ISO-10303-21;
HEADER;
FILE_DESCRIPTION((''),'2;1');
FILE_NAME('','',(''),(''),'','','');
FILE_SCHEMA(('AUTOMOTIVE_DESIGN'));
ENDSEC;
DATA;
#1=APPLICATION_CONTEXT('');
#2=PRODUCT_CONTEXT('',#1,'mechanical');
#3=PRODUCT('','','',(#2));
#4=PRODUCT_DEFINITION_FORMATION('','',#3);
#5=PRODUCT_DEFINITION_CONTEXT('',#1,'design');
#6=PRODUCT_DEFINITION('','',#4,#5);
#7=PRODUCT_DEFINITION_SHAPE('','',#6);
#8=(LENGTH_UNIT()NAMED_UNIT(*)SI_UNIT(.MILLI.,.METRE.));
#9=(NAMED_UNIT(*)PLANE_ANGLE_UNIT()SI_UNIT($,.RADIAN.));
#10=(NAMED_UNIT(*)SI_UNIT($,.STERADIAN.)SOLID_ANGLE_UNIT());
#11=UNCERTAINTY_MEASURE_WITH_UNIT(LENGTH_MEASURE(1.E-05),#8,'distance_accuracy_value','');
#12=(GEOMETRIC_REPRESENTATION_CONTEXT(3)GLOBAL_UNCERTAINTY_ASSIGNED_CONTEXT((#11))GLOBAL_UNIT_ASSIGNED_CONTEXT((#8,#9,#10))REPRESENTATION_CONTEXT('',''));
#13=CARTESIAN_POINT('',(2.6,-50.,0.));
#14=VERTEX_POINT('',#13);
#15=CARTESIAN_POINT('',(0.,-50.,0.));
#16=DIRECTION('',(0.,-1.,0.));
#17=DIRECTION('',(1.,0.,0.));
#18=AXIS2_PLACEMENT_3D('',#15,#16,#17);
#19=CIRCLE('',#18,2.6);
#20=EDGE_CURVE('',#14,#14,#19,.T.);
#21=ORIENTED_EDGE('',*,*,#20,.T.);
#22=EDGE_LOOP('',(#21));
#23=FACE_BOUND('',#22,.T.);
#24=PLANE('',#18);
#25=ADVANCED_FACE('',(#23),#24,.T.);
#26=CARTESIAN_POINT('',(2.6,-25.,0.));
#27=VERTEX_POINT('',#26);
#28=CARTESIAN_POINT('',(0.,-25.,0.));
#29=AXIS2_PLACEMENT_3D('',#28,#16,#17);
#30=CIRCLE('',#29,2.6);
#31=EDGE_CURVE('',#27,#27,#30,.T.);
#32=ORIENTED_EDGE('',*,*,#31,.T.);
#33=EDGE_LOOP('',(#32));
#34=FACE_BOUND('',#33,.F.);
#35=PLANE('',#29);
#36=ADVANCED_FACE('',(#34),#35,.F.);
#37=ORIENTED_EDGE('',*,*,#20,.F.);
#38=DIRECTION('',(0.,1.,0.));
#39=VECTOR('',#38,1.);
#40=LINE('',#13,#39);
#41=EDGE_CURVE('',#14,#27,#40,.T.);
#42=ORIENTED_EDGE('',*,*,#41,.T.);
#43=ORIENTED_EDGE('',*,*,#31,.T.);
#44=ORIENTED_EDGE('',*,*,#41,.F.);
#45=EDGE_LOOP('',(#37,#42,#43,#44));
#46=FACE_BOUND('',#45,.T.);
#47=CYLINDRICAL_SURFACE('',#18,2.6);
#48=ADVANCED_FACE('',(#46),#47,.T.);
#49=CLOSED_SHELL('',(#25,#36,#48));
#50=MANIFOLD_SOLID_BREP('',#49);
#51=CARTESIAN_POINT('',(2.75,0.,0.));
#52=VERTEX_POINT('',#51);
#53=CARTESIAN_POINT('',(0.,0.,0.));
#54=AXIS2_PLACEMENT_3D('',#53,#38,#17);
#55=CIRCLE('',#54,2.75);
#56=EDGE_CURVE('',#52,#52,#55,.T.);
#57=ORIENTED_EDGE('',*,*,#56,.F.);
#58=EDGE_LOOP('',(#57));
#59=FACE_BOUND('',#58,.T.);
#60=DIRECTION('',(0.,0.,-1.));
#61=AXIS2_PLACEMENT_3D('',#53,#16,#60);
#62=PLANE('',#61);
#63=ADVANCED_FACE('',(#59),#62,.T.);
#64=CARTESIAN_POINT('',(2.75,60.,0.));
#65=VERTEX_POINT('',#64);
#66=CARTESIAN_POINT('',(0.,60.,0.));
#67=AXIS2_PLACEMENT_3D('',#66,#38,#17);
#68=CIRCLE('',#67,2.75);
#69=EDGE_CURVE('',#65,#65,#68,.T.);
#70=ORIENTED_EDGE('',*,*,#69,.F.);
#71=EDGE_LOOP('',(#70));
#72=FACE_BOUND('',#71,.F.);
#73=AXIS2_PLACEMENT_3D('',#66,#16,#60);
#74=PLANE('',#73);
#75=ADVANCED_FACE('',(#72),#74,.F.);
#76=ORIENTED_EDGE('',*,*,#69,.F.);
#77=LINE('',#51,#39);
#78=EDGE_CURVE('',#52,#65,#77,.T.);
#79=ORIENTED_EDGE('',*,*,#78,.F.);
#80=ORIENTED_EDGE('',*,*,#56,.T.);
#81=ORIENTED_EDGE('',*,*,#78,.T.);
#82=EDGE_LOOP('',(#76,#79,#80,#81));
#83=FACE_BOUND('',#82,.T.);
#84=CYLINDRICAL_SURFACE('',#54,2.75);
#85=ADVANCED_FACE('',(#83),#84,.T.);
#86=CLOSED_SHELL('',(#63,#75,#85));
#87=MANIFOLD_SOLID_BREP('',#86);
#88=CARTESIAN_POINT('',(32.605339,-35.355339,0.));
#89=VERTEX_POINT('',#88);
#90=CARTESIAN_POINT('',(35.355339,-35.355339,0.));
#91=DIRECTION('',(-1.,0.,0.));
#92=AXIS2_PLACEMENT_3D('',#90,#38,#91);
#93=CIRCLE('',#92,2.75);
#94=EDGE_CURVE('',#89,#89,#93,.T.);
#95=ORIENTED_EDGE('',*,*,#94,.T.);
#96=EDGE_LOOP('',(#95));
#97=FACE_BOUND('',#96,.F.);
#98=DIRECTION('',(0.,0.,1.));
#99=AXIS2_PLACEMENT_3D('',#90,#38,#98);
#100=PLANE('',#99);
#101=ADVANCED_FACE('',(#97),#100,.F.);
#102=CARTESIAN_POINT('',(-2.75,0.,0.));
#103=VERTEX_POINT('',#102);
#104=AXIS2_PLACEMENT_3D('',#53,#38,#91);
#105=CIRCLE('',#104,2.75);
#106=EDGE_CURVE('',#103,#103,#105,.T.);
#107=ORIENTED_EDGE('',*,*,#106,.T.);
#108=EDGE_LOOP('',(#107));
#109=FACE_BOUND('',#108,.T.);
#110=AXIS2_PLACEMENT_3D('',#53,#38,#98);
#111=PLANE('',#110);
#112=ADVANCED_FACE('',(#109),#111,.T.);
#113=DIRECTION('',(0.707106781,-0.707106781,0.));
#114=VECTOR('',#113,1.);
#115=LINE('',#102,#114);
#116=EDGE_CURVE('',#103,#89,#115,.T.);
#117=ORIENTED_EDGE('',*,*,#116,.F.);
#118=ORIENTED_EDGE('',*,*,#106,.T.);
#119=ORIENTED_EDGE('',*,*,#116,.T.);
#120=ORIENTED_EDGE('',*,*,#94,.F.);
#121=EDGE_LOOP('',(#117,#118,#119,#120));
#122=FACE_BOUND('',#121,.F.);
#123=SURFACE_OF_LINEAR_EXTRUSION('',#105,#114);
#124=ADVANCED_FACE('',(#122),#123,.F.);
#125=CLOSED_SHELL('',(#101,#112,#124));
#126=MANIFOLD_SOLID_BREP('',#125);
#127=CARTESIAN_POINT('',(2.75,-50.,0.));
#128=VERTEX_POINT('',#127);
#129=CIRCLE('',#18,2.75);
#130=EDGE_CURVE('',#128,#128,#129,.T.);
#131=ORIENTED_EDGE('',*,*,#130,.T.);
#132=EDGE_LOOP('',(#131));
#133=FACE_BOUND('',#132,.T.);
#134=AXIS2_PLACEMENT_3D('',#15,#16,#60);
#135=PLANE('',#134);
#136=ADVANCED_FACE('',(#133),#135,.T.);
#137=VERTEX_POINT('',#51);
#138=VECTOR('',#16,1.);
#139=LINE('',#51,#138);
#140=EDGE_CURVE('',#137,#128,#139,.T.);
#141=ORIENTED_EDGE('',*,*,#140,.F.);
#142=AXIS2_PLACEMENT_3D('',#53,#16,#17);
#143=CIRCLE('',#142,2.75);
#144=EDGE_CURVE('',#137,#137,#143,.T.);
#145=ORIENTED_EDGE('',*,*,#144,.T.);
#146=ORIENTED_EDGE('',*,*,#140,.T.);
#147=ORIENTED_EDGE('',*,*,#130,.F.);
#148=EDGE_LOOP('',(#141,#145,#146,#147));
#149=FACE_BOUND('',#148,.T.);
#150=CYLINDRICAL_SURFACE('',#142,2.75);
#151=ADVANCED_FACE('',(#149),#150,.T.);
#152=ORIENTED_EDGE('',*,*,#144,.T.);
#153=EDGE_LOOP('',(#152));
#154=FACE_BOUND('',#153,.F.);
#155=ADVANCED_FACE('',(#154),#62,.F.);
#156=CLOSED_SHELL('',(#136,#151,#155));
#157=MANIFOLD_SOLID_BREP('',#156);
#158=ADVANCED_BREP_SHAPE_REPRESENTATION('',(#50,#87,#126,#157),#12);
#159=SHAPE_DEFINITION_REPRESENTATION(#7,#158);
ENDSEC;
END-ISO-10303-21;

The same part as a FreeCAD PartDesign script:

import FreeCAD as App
import Part
import Sketcher
from FreeCAD import Vector
Q = App.Units.Quantity

doc = App.newDocument("Part")
body = doc.addObject("PartDesign::Body", "Body")

# Sketch on XZ plane
sketch1 = doc.addObject("Sketcher::SketchObject", "Sketch")
body.addObject(sketch1)
sketch1.AttachmentSupport = (doc.XZ_Plane, [""])
sketch1.MapMode = "FlatFace"
sketch1.addGeometry(Part.Circle(Vector(0, 0, 0), Vector(0, 0, 1), 2.8), False)
sketch1.addConstraint([
    Sketcher.Constraint("Coincident", 0, 3, -1, 1),
    Sketcher.Constraint("Diameter", 0, Q("5.5 mm")),
])

# Sketch on XY plane
sketch2 = doc.addObject("Sketcher::SketchObject", "Sketch001")
body.addObject(sketch2)
sketch2.AttachmentSupport = (doc.XY_Plane, [""])
sketch2.MapMode = "FlatFace"
sketch2.addGeometry(Part.LineSegment(Vector(0, 0, 0), Vector(0, -50, 0)), False)
sketch2.addConstraint([
    Sketcher.Constraint("Vertical", 0),
    Sketcher.Constraint("Coincident", 0, 1, -1, 1),
    Sketcher.Constraint("DistanceY", 0, 2, 0, 1, Q("50 mm")),
])
doc.recompute()

additivepipe = doc.addObject("PartDesign::AdditivePipe", "AdditivePipe")
body.addObject(additivepipe)
additivepipe.Profile = sketch1
additivepipe.Spine = (sketch2, ["Edge1"])
body2 = doc.addObject("PartDesign::Body", "Body001")

# Sketch on XZ plane
sketch3 = doc.addObject("Sketcher::SketchObject", "Sketch002")
body2.addObject(sketch3)
sketch3.AttachmentSupport = (doc.getObject("XZ_Plane001"), [""])
sketch3.MapMode = "FlatFace"
sketch3.addGeometry(Part.Circle(Vector(0, 0, 0), Vector(0, 0, 1), 2.8), False)
sketch3.addConstraint([
    Sketcher.Constraint("Coincident", 0, 3, -1, 1),
    Sketcher.Constraint("Diameter", 0, Q("5.5 mm")),
])

# Sketch on an angled plane
sketch4 = doc.addObject("Sketcher::SketchObject", "Sketch003")
body2.addObject(sketch4)
sketch4.Placement = App.Placement(Vector(0, 0, 0), App.Rotation(Vector(0.707106781, -0.707106781, 0), Vector(0, 0, 0.999999999), Vector(-0.707106781, -0.707106781, 0), "ZXY"))
sketch4.addGeometry(Part.LineSegment(Vector(0, 0, 0), Vector(50, 0, 0)), False)
sketch4.addConstraint([
    Sketcher.Constraint("Horizontal", 0),
    Sketcher.Constraint("Coincident", 0, 1, -1, 1),
    Sketcher.Constraint("DistanceX", 0, 1, 0, 2, Q("50 mm")),
])
doc.recompute()

additivepipe2 = doc.addObject("PartDesign::AdditivePipe", "AdditivePipe001")
body2.addObject(additivepipe2)
additivepipe2.Profile = sketch3
additivepipe2.Spine = (sketch4, ["Edge1"])
body3 = doc.addObject("PartDesign::Body", "Body002")

# Sketch on XZ plane
sketch5 = doc.addObject("Sketcher::SketchObject", "Sketch004")
body3.addObject(sketch5)
sketch5.AttachmentSupport = (doc.getObject("XZ_Plane002"), [""])
sketch5.MapMode = "FlatFace"
sketch5.addGeometry(Part.Circle(Vector(0, 0, 0), Vector(0, 0, 1), 2.8), False)
sketch5.addConstraint([
    Sketcher.Constraint("Coincident", 0, 3, -1, 1),
    Sketcher.Constraint("Diameter", 0, Q("5.5 mm")),
])

# Sketch on XY plane
sketch6 = doc.addObject("Sketcher::SketchObject", "Sketch005")
body3.addObject(sketch6)
sketch6.AttachmentSupport = (doc.getObject("XY_Plane002"), [""])
sketch6.MapMode = "FlatFace"
sketch6.addGeometry(Part.LineSegment(Vector(0, 0, 0), Vector(0, 60, 0)), False)
sketch6.addConstraint([
    Sketcher.Constraint("Vertical", 0),
    Sketcher.Constraint("Coincident", 0, 1, -1, 1),
    Sketcher.Constraint("DistanceY", 0, 1, 0, 2, Q("60 mm")),
])
doc.recompute()

additivepipe3 = doc.addObject("PartDesign::AdditivePipe", "AdditivePipe002")
body3.addObject(additivepipe3)
additivepipe3.Profile = sketch5
additivepipe3.Spine = (sketch6, ["Edge1"])
body4 = doc.addObject("PartDesign::Body", "Body003")

# Sketch on XZ plane
sketch7 = doc.addObject("Sketcher::SketchObject", "Sketch006")
body4.addObject(sketch7)
sketch7.AttachmentSupport = (doc.getObject("XZ_Plane003"), [""])
sketch7.MapMode = "FlatFace"
sketch7.AttachmentOffset = App.Placement(Vector(0, 0, 50), App.Rotation())
sketch7.addGeometry(Part.Circle(Vector(0, 0, 0), Vector(0, 0, 1), 2.6), False)
sketch7.addConstraint([
    Sketcher.Constraint("Coincident", 0, 3, -1, 1),
    Sketcher.Constraint("Diameter", 0, Q("5.2 mm")),
])
pad1 = doc.addObject("PartDesign::Pad", "Pad")
body4.addObject(pad1)
pad1.Profile = sketch7
pad1.Length = 25
pad1.Reversed = True

doc.recompute()
